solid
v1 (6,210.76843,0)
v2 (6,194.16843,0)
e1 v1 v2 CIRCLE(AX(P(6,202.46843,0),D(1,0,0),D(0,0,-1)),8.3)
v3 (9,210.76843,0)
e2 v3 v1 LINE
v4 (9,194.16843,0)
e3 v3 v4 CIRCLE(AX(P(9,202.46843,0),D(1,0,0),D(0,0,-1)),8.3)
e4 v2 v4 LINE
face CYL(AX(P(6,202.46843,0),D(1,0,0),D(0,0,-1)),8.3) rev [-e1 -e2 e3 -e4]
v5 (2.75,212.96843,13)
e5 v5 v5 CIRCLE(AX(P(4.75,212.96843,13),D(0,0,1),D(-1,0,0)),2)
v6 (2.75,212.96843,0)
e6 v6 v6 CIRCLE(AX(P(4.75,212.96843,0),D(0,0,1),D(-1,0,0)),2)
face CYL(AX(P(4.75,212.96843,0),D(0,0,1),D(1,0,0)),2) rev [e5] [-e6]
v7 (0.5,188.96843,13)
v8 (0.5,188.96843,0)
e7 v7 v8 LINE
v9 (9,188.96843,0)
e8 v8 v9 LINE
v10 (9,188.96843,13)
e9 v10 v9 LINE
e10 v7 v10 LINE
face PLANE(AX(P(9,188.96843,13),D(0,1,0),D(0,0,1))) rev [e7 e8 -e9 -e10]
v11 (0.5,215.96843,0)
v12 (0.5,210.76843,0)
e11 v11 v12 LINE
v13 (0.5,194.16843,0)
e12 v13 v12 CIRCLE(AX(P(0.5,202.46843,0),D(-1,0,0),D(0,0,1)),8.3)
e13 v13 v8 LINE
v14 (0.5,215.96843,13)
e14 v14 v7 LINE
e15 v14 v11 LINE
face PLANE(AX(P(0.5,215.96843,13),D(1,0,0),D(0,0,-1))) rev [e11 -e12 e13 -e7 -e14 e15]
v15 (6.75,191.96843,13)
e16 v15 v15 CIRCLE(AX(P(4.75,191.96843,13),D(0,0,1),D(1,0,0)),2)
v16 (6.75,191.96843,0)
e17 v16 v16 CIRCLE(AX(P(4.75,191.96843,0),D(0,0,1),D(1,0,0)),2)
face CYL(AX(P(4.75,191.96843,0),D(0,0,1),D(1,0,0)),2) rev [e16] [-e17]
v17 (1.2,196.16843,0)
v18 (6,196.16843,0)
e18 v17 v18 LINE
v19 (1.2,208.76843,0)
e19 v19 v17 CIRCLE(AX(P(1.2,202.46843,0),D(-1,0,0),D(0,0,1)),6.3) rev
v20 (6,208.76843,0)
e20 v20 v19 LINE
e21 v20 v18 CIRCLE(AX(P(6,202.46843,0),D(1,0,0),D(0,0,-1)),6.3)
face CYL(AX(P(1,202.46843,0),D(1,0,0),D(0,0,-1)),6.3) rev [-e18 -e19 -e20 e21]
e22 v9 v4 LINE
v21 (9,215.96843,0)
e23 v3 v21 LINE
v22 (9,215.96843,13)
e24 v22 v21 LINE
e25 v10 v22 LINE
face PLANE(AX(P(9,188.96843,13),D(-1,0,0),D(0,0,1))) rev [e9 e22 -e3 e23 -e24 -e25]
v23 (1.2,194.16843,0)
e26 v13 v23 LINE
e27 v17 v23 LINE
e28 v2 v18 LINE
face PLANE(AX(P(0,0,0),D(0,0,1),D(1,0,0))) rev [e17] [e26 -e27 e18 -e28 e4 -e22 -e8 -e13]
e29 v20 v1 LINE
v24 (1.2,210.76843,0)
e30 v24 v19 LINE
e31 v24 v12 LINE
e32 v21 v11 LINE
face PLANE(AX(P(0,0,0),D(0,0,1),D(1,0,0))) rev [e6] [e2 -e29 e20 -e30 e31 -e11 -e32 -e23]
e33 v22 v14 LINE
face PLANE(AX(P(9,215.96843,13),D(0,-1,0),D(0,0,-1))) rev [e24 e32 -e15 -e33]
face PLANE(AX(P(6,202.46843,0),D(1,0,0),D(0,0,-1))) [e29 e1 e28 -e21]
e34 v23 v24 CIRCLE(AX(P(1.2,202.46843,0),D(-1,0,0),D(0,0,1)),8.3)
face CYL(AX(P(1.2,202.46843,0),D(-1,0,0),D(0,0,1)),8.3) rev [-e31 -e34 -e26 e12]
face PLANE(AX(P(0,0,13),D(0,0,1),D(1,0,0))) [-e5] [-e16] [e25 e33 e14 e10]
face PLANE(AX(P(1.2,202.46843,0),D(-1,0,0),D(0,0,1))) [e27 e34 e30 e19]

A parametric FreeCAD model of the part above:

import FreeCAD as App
import Part
import Sketcher
from FreeCAD import Vector

doc = App.newDocument("Part")
body = doc.addObject("PartDesign::Body", "Body")

sketch1 = doc.addObject("Sketcher::SketchObject", "Sketch")
body.addObject(sketch1)
sketch1.AttachmentSupport = (doc.XY_Plane, [""])
sketch1.MapMode = "FlatFace"
sketch1.addGeometry([
    Part.LineSegment(Vector(0, 216, 0), Vector(0, 189, 0)),
    Part.LineSegment(Vector(0, 189, 0), Vector(9, 189, 0)),
    Part.LineSegment(Vector(9, 189, 0), Vector(9, 216, 0)),
    Part.LineSegment(Vector(9, 216, 0), Vector(0, 216, 0)),
], False)
sketch1.addConstraint([
    Sketcher.Constraint("Coincident", 0, 2, 1, 1),
    Sketcher.Constraint("Coincident", 1, 2, 2, 1),
    Sketcher.Constraint("Coincident", 2, 2, 3, 1),
    Sketcher.Constraint("Coincident", 3, 2, 0, 1),
    Sketcher.Constraint("Vertical", 0),
    Sketcher.Constraint("Horizontal", 1),
    Sketcher.Constraint("Vertical", 2),
    Sketcher.Constraint("Horizontal", 3),
    Sketcher.Constraint("DistanceY", 0, 2, 0, 1, 27.0),
    Sketcher.Constraint("DistanceX", 1, 1, 1, 2, 8.5),
    Sketcher.Constraint("DistanceX", -1, 1, 1, 2, 9.0),
    Sketcher.Constraint("DistanceY", -1, 1, 0, 2, 188.96843),
])
pad1 = doc.addObject("PartDesign::Pad", "Pad")
body.addObject(pad1)
pad1.Profile = sketch1
pad1.Length = 13

sketch2 = doc.addObject("Sketcher::SketchObject", "Sketch001")
body.addObject(sketch2)
sketch2.AttachmentSupport = (doc.YZ_Plane, [""])
sketch2.MapMode = "FlatFace"
sketch2.AttachmentOffset = App.Placement(Vector(0, 0, 9), App.Rotation())
sketch2.addGeometry(Part.Circle(Vector(202, 0, 0), Vector(0, 0, 1), 8), False)
sketch2.addConstraint([
    Sketcher.Constraint("PointOnObject", 0, 3, -1),
    Sketcher.Constraint("Diameter", 0, 16.6),
    Sketcher.Constraint("DistanceX", -1, 1, 0, 3, 202.46843),
])
pocket1 = doc.addObject("PartDesign::Pocket", "Pocket")
body.addObject(pocket1)
pocket1.Profile = sketch2
pocket1.Length = 3

sketch3 = doc.addObject("Sketcher::SketchObject", "Sketch002")
body.addObject(sketch3)
sketch3.AttachmentSupport = (doc.YZ_Plane, [""])
sketch3.MapMode = "FlatFace"
sketch3.AttachmentOffset = App.Placement(Vector(0, 0, 6), App.Rotation())
sketch3.addGeometry(Part.Circle(Vector(202, 0, 0), Vector(0, 0, 1), 6), False)
sketch3.addConstraint([
    Sketcher.Constraint("PointOnObject", 0, 3, -1),
    Sketcher.Constraint("Diameter", 0, 12.6),
    Sketcher.Constraint("DistanceX", -1, 1, 0, 3, 202.46843),
])
pocket2 = doc.addObject("PartDesign::Pocket", "Pocket001")
body.addObject(pocket2)
pocket2.Profile = sketch3
pocket2.Length = 5

sketch4 = doc.addObject("Sketcher::SketchObject", "Sketch003")
body.addObject(sketch4)
sketch4.AttachmentSupport = (doc.YZ_Plane, [""])
sketch4.MapMode = "FlatFace"
sketch4.AttachmentOffset = App.Placement(Vector(0, 0, 0.5), App.Rotation())
sketch4.addGeometry(Part.Circle(Vector(202, 0, 0), Vector(0, 0, 1), 8), False)
sketch4.addConstraint([
    Sketcher.Constraint("PointOnObject", 0, 3, -1),
    Sketcher.Constraint("Diameter", 0, 16.6),
    Sketcher.Constraint("DistanceX", -1, 1, 0, 3, 202.46843),
])
pocket3 = doc.addObject("PartDesign::Pocket", "Pocket002")
body.addObject(pocket3)
pocket3.Profile = sketch4
pocket3.Length = 0.7
pocket3.Reversed = True

sketch5 = doc.addObject("Sketcher::SketchObject", "Sketch004")
body.addObject(sketch5)
sketch5.AttachmentSupport = (doc.XY_Plane, [""])
sketch5.MapMode = "FlatFace"
sketch5.AttachmentOffset = App.Placement(Vector(0, 0, 13), App.Rotation())
sketch5.addGeometry([
    Part.Circle(Vector(4.8, 192, 0), Vector(0, 0, 1), 2),
    Part.Circle(Vector(4.8, 213, 0), Vector(0, 0, 1), 2),
], False)
sketch5.addConstraint([
    Sketcher.Constraint("Equal", 0, 1),
    Sketcher.Constraint("Vertical", 0, 3, 1, 3),
    Sketcher.Constraint("Diameter", 0, 4.0),
    Sketcher.Constraint("DistanceY", 0, 3, 1, 3, 21.0),
    Sketcher.Constraint("DistanceX", -1, 1, 0, 3, 4.75),
    Sketcher.Constraint("DistanceY", -1, 1, 0, 3, 191.96843),
])
pocket4 = doc.addObject("PartDesign::Pocket", "Pocket003")
body.addObject(pocket4)
pocket4.Profile = sketch5
pocket4.Type = "ThroughAll"

doc.recompute()
